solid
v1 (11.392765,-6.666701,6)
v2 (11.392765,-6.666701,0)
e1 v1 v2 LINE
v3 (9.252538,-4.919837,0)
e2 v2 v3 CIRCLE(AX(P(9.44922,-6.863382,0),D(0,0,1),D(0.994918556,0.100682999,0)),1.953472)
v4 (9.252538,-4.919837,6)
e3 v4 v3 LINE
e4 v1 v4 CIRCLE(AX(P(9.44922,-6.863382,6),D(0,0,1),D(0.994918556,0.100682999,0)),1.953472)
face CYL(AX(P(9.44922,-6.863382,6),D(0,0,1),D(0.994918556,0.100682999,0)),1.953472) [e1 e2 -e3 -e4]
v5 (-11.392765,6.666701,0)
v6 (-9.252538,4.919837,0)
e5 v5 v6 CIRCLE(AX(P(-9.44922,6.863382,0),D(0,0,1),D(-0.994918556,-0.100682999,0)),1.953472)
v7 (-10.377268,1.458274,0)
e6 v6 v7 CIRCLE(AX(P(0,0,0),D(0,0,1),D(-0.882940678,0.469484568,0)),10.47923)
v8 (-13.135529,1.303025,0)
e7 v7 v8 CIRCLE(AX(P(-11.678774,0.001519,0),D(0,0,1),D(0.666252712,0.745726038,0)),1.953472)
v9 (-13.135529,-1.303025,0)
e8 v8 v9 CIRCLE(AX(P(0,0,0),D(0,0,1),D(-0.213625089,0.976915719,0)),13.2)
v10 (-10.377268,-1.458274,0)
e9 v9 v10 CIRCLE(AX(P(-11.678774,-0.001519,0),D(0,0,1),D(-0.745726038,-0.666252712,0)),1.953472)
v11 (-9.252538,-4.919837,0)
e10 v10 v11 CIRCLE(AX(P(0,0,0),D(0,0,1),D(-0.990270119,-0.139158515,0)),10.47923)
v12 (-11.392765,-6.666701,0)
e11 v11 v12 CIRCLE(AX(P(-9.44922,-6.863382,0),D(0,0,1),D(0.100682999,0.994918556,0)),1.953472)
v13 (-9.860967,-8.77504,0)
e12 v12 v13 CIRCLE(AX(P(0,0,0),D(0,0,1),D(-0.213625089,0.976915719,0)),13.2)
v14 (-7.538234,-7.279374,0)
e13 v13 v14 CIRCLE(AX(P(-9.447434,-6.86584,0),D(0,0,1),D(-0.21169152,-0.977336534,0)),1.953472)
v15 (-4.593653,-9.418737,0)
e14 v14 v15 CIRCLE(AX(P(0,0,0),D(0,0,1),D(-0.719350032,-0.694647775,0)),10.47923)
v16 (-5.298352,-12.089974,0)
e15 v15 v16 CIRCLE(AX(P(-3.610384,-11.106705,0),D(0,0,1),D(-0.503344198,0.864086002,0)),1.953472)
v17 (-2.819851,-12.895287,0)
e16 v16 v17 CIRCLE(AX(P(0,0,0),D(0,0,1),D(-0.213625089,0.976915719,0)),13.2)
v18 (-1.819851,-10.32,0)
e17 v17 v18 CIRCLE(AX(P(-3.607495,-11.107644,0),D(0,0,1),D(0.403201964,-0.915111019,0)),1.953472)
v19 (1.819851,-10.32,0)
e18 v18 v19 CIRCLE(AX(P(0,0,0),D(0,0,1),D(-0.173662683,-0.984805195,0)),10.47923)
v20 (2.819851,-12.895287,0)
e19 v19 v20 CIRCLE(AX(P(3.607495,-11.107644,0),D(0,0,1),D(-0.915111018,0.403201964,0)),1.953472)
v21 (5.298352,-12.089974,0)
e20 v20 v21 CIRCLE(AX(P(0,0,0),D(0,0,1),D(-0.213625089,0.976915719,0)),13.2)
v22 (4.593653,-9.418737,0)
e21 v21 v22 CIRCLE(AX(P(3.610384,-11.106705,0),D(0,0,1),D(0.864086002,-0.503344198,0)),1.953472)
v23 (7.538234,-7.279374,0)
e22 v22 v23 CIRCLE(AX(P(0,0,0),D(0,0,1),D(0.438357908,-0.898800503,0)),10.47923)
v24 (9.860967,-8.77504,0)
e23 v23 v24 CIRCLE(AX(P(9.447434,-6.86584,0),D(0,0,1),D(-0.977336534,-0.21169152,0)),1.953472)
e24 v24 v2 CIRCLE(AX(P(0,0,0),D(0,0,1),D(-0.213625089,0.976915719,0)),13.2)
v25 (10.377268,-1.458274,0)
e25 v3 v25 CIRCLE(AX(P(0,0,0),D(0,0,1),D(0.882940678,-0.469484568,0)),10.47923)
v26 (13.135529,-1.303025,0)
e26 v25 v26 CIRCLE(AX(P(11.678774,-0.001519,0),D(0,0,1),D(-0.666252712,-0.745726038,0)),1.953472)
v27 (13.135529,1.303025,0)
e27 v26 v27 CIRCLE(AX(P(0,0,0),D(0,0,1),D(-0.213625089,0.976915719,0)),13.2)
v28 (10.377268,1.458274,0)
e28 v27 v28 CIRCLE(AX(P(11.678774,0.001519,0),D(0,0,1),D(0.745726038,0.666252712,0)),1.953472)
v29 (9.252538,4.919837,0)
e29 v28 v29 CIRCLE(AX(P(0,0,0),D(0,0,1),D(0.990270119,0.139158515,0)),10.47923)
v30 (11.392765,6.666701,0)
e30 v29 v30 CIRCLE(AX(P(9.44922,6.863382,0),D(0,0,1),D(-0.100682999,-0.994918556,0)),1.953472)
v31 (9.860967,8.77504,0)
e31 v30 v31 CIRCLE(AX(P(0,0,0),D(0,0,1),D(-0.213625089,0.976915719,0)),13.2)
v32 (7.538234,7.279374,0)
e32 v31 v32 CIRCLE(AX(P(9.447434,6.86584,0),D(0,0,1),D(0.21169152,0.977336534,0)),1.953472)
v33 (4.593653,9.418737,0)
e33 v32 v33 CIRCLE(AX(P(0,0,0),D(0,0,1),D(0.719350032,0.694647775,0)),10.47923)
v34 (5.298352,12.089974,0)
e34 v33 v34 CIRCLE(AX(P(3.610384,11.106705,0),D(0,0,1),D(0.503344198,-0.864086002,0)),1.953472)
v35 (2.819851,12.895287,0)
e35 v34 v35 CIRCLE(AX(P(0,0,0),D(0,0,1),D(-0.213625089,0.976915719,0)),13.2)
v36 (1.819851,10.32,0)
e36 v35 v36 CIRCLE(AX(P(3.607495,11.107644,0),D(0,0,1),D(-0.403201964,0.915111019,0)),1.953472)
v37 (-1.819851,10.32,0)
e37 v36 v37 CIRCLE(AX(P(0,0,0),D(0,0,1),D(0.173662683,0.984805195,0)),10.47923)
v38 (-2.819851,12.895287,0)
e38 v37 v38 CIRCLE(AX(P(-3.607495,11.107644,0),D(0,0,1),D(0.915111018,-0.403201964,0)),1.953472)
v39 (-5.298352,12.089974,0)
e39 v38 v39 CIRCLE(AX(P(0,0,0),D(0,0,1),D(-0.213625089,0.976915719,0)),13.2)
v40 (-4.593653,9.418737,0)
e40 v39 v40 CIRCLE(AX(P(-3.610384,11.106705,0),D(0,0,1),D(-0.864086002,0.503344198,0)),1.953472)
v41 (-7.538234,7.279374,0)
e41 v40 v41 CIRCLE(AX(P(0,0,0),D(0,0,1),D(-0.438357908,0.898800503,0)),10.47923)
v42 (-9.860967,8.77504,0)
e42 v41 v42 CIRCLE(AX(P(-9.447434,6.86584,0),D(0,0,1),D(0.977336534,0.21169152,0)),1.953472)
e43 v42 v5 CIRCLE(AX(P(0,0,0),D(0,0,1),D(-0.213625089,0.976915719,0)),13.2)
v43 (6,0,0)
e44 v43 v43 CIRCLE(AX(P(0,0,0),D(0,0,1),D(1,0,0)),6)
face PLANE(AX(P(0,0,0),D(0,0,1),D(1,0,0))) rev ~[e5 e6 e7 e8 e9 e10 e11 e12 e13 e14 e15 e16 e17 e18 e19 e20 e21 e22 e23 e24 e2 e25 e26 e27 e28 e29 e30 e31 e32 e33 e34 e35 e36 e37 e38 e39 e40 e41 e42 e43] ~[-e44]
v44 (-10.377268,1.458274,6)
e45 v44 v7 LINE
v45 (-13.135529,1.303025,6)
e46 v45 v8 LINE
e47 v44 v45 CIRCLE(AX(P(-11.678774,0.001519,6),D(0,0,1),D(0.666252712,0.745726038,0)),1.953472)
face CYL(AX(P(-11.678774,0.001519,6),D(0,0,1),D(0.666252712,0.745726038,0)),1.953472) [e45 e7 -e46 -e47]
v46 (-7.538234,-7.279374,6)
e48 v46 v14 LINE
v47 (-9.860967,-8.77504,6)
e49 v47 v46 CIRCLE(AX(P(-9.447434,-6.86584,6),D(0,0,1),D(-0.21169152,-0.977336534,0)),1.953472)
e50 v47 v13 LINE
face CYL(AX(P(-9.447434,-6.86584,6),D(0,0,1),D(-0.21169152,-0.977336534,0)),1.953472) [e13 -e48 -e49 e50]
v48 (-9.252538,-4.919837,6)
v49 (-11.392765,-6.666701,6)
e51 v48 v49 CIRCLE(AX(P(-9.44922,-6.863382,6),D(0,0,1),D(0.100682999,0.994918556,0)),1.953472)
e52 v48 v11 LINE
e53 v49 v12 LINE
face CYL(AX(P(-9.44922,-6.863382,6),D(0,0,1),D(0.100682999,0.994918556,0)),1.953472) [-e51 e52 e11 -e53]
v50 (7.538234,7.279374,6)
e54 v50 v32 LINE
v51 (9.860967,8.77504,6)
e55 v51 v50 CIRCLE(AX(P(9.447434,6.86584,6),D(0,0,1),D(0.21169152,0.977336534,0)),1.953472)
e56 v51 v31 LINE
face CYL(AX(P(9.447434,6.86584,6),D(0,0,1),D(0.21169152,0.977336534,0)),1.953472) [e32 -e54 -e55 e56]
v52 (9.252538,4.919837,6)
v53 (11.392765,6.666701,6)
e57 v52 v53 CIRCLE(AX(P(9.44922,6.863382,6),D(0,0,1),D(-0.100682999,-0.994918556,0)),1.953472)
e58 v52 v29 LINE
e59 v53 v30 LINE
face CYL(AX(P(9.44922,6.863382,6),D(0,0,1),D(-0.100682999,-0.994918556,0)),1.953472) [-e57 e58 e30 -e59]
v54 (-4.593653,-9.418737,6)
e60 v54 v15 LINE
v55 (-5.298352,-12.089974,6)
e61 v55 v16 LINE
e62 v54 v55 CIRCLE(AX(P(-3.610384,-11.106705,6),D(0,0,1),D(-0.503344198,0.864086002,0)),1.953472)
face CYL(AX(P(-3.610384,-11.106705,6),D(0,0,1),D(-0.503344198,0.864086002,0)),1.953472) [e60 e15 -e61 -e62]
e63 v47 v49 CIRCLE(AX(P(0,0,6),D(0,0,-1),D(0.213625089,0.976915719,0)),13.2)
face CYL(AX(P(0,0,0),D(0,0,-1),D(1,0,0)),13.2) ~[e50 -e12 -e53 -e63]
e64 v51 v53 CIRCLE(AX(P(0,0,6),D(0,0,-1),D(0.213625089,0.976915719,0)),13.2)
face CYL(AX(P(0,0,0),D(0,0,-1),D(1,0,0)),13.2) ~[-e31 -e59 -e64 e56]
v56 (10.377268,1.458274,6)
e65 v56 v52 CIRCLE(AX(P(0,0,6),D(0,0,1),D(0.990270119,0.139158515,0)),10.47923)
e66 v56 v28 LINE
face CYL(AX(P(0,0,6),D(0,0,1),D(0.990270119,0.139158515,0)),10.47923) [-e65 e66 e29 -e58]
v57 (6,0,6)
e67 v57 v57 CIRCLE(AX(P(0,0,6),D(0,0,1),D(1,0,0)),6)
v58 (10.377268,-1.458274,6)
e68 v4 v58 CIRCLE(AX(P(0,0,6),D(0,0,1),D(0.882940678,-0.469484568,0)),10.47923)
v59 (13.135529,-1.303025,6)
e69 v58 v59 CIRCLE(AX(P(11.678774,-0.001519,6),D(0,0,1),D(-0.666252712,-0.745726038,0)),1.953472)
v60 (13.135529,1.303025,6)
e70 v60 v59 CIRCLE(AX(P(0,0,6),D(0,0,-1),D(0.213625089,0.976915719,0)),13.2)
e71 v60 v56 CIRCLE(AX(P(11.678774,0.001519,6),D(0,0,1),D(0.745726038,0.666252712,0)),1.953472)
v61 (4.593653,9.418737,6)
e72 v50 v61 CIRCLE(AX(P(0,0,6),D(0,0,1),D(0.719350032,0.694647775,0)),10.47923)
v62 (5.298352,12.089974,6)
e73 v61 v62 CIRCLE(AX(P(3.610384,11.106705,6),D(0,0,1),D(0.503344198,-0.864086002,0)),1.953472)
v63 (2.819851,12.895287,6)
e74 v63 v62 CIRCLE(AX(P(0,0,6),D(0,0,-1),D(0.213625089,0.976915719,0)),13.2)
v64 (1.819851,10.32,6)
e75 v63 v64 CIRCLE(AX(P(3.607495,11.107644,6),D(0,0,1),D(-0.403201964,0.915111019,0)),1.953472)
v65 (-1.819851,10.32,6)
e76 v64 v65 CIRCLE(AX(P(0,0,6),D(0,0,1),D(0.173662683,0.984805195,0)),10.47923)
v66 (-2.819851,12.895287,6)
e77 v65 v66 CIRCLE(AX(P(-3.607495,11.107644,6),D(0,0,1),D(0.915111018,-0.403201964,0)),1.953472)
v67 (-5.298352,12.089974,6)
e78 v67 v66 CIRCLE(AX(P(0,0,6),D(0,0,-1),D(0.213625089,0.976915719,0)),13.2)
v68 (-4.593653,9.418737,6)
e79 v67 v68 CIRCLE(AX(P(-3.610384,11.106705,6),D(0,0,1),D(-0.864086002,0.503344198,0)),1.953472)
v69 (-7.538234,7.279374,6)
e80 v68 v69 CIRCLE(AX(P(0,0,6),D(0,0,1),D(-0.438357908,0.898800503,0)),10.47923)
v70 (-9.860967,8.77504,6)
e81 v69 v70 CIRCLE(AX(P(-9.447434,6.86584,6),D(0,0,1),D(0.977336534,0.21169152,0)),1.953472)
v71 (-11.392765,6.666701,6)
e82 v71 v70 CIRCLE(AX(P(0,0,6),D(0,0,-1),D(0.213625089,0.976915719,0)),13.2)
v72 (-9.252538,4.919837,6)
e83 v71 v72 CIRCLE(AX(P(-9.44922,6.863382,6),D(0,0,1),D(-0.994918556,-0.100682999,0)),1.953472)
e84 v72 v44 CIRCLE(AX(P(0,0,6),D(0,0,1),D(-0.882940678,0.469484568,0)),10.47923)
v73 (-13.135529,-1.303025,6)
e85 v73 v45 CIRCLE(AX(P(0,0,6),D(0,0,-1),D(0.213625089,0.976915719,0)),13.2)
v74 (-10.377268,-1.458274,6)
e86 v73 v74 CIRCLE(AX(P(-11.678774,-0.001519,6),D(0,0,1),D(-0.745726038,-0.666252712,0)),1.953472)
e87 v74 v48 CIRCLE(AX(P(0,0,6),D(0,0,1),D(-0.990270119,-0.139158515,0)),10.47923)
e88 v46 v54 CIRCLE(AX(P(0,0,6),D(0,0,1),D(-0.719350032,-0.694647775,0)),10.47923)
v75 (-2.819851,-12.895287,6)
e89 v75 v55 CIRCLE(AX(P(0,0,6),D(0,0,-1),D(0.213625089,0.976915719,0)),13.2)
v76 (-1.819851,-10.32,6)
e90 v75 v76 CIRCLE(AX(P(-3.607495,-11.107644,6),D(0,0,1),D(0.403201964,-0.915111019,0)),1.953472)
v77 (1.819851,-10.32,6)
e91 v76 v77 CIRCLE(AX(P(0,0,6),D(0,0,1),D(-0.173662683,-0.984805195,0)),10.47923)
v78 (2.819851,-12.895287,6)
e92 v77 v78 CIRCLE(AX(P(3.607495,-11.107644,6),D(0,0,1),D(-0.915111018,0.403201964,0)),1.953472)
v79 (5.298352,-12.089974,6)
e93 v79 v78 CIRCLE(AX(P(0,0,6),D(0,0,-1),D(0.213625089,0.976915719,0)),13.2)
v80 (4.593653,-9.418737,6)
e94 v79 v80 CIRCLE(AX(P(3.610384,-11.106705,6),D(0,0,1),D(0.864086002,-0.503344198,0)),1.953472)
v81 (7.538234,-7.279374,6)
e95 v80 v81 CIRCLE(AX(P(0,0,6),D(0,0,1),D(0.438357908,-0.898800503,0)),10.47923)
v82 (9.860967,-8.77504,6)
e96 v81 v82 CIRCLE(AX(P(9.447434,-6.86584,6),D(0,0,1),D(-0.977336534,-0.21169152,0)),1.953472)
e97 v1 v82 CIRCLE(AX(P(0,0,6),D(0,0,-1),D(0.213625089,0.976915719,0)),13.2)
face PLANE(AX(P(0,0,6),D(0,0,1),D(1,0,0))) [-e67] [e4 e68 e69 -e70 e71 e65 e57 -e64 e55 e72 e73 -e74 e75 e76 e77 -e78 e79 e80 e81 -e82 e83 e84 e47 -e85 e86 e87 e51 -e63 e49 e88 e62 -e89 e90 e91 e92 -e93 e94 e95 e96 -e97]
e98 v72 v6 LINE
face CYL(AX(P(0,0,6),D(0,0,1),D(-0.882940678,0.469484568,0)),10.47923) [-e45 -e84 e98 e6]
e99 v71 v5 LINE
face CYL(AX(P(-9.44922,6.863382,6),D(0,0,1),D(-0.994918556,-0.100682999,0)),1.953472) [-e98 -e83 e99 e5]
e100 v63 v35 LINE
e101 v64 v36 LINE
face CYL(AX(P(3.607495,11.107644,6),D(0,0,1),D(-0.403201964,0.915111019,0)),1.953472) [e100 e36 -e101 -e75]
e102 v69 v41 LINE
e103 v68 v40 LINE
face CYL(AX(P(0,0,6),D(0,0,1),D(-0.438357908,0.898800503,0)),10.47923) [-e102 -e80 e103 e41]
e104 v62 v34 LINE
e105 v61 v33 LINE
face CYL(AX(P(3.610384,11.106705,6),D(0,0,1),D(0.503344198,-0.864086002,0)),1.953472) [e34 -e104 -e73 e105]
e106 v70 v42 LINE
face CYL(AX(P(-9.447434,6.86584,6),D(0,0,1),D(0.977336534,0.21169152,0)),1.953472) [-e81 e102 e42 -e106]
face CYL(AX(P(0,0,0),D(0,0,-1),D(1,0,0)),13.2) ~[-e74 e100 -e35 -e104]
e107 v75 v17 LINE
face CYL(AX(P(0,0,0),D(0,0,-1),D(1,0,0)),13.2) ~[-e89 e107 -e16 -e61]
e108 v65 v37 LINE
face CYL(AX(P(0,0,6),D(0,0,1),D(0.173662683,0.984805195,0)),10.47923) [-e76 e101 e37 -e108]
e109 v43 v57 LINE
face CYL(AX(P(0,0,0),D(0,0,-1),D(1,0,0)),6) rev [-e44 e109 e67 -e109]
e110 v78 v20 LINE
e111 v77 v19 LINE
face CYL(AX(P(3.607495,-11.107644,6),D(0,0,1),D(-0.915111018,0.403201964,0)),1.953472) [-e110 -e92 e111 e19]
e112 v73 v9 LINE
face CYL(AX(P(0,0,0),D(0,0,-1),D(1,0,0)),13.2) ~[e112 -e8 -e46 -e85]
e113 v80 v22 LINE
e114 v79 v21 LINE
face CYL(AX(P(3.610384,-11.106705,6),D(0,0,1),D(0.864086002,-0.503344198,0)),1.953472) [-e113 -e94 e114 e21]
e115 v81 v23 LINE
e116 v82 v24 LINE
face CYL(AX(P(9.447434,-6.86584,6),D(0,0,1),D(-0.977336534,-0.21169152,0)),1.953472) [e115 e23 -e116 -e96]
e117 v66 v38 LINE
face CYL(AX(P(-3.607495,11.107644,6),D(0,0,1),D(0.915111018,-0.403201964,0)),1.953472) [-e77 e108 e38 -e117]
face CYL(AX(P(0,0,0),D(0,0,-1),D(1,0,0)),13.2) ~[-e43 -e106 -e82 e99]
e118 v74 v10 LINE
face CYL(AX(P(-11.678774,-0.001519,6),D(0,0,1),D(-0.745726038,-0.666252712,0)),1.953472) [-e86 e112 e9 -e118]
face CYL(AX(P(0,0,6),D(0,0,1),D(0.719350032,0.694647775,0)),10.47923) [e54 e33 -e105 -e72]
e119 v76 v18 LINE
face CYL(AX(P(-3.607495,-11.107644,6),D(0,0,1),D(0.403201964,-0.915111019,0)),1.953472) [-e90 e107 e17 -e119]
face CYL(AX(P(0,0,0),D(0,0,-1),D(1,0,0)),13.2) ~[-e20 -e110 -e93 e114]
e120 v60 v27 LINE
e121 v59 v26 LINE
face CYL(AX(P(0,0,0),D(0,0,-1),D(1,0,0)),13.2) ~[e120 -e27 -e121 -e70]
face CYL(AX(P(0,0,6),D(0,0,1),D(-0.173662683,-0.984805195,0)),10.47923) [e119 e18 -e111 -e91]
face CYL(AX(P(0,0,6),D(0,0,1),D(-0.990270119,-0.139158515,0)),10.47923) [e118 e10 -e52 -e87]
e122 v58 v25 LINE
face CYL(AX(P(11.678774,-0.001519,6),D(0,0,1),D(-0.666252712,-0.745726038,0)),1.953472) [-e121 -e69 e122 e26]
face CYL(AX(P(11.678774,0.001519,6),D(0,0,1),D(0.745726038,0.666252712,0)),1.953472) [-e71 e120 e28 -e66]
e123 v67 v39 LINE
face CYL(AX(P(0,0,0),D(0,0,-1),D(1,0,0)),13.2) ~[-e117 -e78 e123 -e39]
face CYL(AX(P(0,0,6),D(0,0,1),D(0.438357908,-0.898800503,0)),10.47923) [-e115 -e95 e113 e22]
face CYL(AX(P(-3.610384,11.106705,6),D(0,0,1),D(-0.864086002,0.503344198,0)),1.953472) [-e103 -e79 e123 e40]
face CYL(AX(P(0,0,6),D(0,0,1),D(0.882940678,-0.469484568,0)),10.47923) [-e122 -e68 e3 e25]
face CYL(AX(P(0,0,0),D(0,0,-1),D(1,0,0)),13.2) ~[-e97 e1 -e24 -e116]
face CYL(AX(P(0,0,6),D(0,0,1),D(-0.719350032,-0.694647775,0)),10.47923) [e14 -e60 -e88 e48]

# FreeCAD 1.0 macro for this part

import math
import FreeCAD as App
import Part
import Sketcher

V = App.Vector
Q = App.Units.Quantity

doc = App.newDocument("Part")
body = doc.addObject("PartDesign::Body", "Body")

sketch1 = doc.addObject("Sketcher::SketchObject", "Sketch")
body.addObject(sketch1)
sketch1.AttachmentSupport = (doc.XY_Plane, [""])
sketch1.MapMode = "FlatFace"
sketch1.addGeometry(Part.Circle(V(0, 0, 0), V(0, 0, 1), 13), False)
sketch1.addGeometry(Part.Circle(V(0, 0, 0), V(0, 0, 1), 6), False)
sketch1.addConstraint(Sketcher.Constraint("Coincident", 0, 3, -1, 1))
sketch1.addConstraint(Sketcher.Constraint("Coincident", 1, 3, -1, 1))
sketch1.addConstraint(Sketcher.Constraint("Diameter", 1, Q("12 mm")))
sketch1.addConstraint(Sketcher.Constraint("Diameter", 0, Q("26.4 mm")))
pad1 = doc.addObject("PartDesign::Pad", "Pad")
body.addObject(pad1)
pad1.Profile = sketch1
pad1.Length = 6

sketch2 = doc.addObject("Sketcher::SketchObject", "Sketch001")
body.addObject(sketch2)
sketch2.AttachmentSupport = (doc.XY_Plane, [""])
sketch2.MapMode = "FlatFace"
sketch2.AttachmentOffset = App.Placement(V(0, 0, 6), App.Rotation())
sketch2.addGeometry(Part.ArcOfCircle(Part.Circle(V(0, 0, 0), V(0, 0, 1), 13.2), math.radians(78), math.radians(102)), False)
sketch2.addGeometry(Part.ArcOfCircle(Part.Circle(V(-3.6, 11.1, 0), V(0, 0, 1), 2), math.radians(-24), math.radians(66)), False)
sketch2.addGeometry(Part.ArcOfCircle(Part.Circle(V(0, 0, 0), V(0, 0, 1), 10.5), math.radians(80), math.radians(100)), False)
sketch2.addGeometry(Part.ArcOfCircle(Part.Circle(V(3.6, 11.1, 0), V(0, 0, 1), 2), math.radians(114), math.radians(204)), False)
sketch2.addConstraint(Sketcher.Constraint("Coincident", 0, 2, 1, 2))
sketch2.addConstraint(Sketcher.Constraint("Coincident", 1, 1, 2, 2))
sketch2.addConstraint(Sketcher.Constraint("Coincident", 2, 1, 3, 2))
sketch2.addConstraint(Sketcher.Constraint("Coincident", 3, 1, 0, 1))
sketch2.addConstraint(Sketcher.Constraint("Coincident", 0, 3, -1, 1))
sketch2.addConstraint(Sketcher.Constraint("Coincident", 2, 3, -1, 1))
sketch2.addConstraint(Sketcher.Constraint("Equal", 1, 3))
sketch2.addConstraint(Sketcher.Constraint("Symmetric", 1, 3, 3, 3, -2))
sketch2.addConstraint(Sketcher.Constraint("Radius", 0, Q("13.2 mm")))
sketch2.addConstraint(Sketcher.Constraint("DistanceX", 0, 2, 1, 1, Q("1 mm")))
sketch2.addConstraint(Sketcher.Constraint("DistanceY", -1, 1, 1, 1, Q("10.32 mm")))
sketch2.addConstraint(Sketcher.Constraint("Radius", 1, Q("1.953472 mm")))
sketch2.addConstraint(Sketcher.Constraint("Radius", 2, Q("10.47923 mm")))
pocket1 = doc.addObject("PartDesign::Pocket", "Pocket")
body.addObject(pocket1)
pocket1.Profile = sketch2
pocket1.Type = "ThroughAll"
doc.recompute()

polarpattern = doc.addObject("PartDesign::PolarPattern", "PolarPattern")
body.addObject(polarpattern)
polarpattern.Originals = [pocket1]
polarpattern.Axis = (doc.Z_Axis, [""])
polarpattern.Angle = 360
polarpattern.Occurrences = 10
body.Tip = polarpattern

doc.recompute()
